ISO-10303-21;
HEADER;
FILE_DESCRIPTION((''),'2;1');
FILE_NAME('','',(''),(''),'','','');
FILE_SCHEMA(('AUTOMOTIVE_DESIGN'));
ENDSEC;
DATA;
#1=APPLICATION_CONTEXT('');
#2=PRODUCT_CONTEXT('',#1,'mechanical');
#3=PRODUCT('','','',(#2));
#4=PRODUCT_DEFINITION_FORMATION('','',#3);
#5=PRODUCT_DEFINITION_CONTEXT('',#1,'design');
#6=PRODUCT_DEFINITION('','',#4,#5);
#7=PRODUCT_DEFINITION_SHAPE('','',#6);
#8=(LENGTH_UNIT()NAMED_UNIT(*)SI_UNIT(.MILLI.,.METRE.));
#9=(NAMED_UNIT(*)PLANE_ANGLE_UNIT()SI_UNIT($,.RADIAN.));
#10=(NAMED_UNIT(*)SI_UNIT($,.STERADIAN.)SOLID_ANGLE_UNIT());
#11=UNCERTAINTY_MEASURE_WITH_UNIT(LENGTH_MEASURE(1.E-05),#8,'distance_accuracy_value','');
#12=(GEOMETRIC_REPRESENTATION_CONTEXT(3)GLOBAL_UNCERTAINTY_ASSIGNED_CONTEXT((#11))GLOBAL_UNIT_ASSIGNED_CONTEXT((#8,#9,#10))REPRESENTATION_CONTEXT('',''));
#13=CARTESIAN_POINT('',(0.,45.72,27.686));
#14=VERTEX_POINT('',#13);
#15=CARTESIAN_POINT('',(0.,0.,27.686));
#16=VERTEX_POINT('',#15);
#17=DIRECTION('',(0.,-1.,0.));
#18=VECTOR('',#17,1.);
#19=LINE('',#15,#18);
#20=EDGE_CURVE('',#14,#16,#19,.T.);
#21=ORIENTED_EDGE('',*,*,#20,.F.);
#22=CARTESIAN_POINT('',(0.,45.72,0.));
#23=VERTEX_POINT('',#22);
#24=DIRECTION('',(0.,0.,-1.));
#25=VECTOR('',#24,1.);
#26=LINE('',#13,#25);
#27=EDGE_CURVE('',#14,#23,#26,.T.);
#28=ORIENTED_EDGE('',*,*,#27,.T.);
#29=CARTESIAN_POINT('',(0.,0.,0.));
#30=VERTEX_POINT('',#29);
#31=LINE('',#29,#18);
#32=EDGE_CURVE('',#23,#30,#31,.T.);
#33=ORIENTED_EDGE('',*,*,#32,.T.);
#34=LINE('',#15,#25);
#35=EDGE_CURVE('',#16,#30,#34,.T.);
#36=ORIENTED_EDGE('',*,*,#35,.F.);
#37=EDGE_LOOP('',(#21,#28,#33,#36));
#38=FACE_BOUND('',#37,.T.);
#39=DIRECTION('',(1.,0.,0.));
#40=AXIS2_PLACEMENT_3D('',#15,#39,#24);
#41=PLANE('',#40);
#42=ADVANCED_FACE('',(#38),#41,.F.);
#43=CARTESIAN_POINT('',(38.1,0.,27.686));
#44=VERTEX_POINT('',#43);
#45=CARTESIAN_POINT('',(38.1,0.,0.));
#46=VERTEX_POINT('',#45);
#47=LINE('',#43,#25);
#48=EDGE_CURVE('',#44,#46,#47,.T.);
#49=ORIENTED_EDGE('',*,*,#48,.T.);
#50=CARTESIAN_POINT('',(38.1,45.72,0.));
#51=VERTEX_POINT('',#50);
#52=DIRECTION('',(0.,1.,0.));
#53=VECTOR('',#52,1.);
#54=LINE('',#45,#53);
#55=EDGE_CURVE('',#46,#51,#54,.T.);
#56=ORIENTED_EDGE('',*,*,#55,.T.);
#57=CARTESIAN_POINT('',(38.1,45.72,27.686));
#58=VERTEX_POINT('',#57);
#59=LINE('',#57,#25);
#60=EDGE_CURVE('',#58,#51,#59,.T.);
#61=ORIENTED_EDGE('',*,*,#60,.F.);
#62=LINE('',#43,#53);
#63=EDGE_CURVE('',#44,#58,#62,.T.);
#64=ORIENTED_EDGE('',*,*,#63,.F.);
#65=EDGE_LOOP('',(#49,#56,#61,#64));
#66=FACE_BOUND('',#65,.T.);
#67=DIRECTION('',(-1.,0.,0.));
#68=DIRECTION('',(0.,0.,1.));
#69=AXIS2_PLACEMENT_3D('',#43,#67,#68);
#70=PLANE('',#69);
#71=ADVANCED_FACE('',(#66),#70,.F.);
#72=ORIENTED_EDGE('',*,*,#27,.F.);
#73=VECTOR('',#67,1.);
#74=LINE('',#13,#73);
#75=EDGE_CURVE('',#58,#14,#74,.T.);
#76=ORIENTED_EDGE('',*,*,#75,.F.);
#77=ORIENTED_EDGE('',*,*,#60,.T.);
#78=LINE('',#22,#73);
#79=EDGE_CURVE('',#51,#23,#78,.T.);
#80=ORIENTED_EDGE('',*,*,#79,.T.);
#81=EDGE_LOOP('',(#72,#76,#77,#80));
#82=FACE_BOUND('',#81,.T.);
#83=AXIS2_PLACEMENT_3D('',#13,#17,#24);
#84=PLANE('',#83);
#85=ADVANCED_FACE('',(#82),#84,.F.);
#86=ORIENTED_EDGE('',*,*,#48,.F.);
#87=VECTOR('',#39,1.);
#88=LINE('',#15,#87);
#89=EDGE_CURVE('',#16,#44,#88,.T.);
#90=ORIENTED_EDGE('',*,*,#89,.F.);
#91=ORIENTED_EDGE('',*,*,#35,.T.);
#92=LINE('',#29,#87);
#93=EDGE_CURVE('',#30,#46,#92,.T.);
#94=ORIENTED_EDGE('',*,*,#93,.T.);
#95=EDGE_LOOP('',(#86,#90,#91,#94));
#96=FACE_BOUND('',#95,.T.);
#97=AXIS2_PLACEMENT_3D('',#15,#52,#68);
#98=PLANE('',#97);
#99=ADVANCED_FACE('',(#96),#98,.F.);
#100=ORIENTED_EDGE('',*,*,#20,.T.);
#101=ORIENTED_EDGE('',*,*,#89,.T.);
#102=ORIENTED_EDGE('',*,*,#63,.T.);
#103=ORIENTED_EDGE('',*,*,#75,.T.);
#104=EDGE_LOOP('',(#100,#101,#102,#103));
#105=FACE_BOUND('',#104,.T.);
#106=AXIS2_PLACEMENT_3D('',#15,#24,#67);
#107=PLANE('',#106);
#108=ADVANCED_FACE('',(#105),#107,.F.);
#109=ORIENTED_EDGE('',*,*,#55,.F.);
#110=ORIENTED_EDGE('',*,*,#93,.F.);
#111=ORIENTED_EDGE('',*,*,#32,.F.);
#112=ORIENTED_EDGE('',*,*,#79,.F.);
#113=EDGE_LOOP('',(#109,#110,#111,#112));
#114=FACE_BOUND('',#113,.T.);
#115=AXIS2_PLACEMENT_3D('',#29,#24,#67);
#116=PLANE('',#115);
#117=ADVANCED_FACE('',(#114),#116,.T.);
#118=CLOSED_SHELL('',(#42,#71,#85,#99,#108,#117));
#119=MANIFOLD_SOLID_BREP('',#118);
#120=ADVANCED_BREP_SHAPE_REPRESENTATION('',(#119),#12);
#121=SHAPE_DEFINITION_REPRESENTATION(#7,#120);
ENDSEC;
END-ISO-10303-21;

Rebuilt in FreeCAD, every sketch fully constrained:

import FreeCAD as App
import Part
import Sketcher
Q = App.Units.Quantity


def add_polygon(sketch, points):
    """Adds a closed chain of lines whose ends are joined by coincident constraints."""
    first, n = sketch.GeometryCount, len(points)
    for a, b in zip(points, points[1:] + points[:1]):
        sketch.addGeometry(Part.LineSegment(App.Vector(*a, 0), App.Vector(*b, 0)), False)
    for i in range(n):
        sketch.addConstraint(Sketcher.Constraint("Coincident", first + i, 2, first + (i + 1) % n, 1))

doc = App.newDocument("Part")
body = doc.addObject("PartDesign::Body", "Body")

# Sketch on XY plane
sketch1 = doc.addObject("Sketcher::SketchObject", "Sketch")
body.addObject(sketch1)
sketch1.AttachmentSupport = (doc.XY_Plane, [""])
sketch1.MapMode = "FlatFace"
add_polygon(sketch1, [(0, 46), (0, 0), (38, 0), (38, 46)])  # lines 0-3
sketch1.addConstraint([
    Sketcher.Constraint("Vertical", 0),
    Sketcher.Constraint("Horizontal", 1),
    Sketcher.Constraint("Vertical", 2),
    Sketcher.Constraint("Horizontal", 3),
    Sketcher.Constraint("Coincident", 0, 2, -1, 1),
    Sketcher.Constraint("DistanceX", 1, 1, 1, 2, Q("1.5 in")),
    Sketcher.Constraint("DistanceY", 0, 2, 0, 1, Q("1.8 in")),
])
pad1 = doc.addObject("PartDesign::Pad", "Pad")
body.addObject(pad1)
pad1.Profile = sketch1
pad1.Length = Q("1.09 in")

doc.recompute()
